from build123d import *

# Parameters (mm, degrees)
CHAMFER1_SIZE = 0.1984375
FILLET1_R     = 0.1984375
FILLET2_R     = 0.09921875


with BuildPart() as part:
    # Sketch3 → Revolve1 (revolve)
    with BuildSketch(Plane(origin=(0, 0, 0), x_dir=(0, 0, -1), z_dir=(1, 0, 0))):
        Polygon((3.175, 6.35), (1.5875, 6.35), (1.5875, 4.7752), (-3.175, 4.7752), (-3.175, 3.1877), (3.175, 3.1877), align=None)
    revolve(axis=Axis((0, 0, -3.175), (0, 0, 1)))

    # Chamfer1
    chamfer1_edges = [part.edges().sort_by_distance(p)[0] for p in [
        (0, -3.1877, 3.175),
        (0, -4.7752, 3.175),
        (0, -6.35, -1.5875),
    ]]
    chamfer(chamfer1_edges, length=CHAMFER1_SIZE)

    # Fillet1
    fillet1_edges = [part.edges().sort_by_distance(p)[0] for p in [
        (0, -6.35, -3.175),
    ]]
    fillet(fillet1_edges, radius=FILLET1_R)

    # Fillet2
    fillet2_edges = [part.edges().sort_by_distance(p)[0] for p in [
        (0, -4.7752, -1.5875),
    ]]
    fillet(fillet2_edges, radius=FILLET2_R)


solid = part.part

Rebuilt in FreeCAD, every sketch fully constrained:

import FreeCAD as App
import Part
import Sketcher
Q = App.Units.Quantity


def edges_at(feature, points):
    """Names of the edges that pass closest to the given points."""
    edges = feature.Shape.Edges
    near = lambda p: min(range(len(edges)), key=lambda i: edges[i].distToShape(Part.Vertex(*p))[0])
    return sorted({f"Edge{near(p) + 1}" for p in points})


def add_polygon(sketch, points):
    """Adds a closed chain of lines whose ends are joined by coincident constraints."""
    first, n = sketch.GeometryCount, len(points)
    for a, b in zip(points, points[1:] + points[:1]):
        sketch.addGeometry(Part.LineSegment(App.Vector(*a, 0), App.Vector(*b, 0)), False)
    for i in range(n):
        sketch.addConstraint(Sketcher.Constraint("Coincident", first + i, 2, first + (i + 1) % n, 1))

doc = App.newDocument("Part")
params = doc.addObject("Spreadsheet::Sheet", "Params")
for row, (alias, value) in enumerate([
    ("sketch1_height", "0.25 in"),
    ("sketch1_width", "0.062 in"),
    ("sketch1_width2", "0.0625 in"),
    ("revolution_angle", "360 deg"),
    ("chamfer_size", "0.198437 mm"),
    ("fillet_radius", "0.198437 mm"),
    ("fillet2_radius", "0.099219 mm"),
], start=1):
    params.set(f"A{row}", alias)
    params.set(f"B{row}", "=" + value)
    params.setAlias(f"B{row}", alias)

body = doc.addObject("PartDesign::Body", "Body")

sketch1 = doc.addObject("Sketcher::SketchObject", "Sketch")
body.addObject(sketch1)
sketch1.AttachmentSupport = (doc.YZ_Plane, [""])
sketch1.MapMode = "FlatFace"
add_polygon(sketch1, [(6.35, -3.175), (6.35, -1.5875), (4.7752, -1.5875), (4.7752, 3.175), (3.1877, 3.175), (3.1877, -3.175)])
sketch1.addConstraint(Sketcher.Constraint("Vertical", 0))
sketch1.addConstraint(Sketcher.Constraint("Horizontal", 1))
sketch1.addConstraint(Sketcher.Constraint("Vertical", 2))
sketch1.addConstraint(Sketcher.Constraint("Horizontal", 3))
sketch1.addConstraint(Sketcher.Constraint("Vertical", 4))
sketch1.addConstraint(Sketcher.Constraint("Horizontal", 5))
sketch1.addConstraint(Sketcher.Constraint("Equal", 3, 0))
sketch1.addConstraint(Sketcher.Constraint("DistanceY", 4, 2, 4, 1, Q("0.25 in")))
sketch1.addConstraint(Sketcher.Constraint("DistanceX", 1, 2, 1, 1, Q("0.062 in")))
sketch1.addConstraint(Sketcher.Constraint("DistanceX", 3, 2, 3, 1, Q("0.0625 in")))
sketch1.addConstraint(Sketcher.Constraint("DistanceX", -1, 1, 0, 2, Q("0.25 in")))
sketch1.addConstraint(Sketcher.Constraint("DistanceY", 0, 2, -1, 1, Q("0.0625 in")))
sketch1.setExpression("Constraints[13]", "Params.sketch1_height")
sketch1.setExpression("Constraints[14]", "Params.sketch1_width")
sketch1.setExpression("Constraints[15]", "Params.sketch1_width2")
revolution = doc.addObject("PartDesign::Revolution", "Revolution")
body.addObject(revolution)
revolution.Profile = sketch1
revolution.ReferenceAxis = (sketch1, ["V_Axis"])
revolution.setExpression("Angle", "Params.revolution_angle")
doc.recompute()

chamfer = doc.addObject("PartDesign::Chamfer", "Chamfer")
body.addObject(chamfer)
chamfer.Base = (revolution, edges_at(revolution, [(0, -3.188, 3.175), (0, -4.775, 3.175), (0, -6.35, -1.587)]))
chamfer.setExpression("Size", "Params.chamfer_size")
doc.recompute()

fillet = doc.addObject("PartDesign::Fillet", "Fillet")
body.addObject(fillet)
fillet.Base = (chamfer, edges_at(chamfer, [(0, -6.35, -3.175)]))
fillet.setExpression("Radius", "Params.fillet_radius")
doc.recompute()

fillet2 = doc.addObject("PartDesign::Fillet", "Fillet001")
body.addObject(fillet2)
fillet2.Base = (fillet, edges_at(fillet, [(0, -4.775, -1.587)]))
fillet2.setExpression("Radius", "Params.fillet2_radius")

doc.recompute()
